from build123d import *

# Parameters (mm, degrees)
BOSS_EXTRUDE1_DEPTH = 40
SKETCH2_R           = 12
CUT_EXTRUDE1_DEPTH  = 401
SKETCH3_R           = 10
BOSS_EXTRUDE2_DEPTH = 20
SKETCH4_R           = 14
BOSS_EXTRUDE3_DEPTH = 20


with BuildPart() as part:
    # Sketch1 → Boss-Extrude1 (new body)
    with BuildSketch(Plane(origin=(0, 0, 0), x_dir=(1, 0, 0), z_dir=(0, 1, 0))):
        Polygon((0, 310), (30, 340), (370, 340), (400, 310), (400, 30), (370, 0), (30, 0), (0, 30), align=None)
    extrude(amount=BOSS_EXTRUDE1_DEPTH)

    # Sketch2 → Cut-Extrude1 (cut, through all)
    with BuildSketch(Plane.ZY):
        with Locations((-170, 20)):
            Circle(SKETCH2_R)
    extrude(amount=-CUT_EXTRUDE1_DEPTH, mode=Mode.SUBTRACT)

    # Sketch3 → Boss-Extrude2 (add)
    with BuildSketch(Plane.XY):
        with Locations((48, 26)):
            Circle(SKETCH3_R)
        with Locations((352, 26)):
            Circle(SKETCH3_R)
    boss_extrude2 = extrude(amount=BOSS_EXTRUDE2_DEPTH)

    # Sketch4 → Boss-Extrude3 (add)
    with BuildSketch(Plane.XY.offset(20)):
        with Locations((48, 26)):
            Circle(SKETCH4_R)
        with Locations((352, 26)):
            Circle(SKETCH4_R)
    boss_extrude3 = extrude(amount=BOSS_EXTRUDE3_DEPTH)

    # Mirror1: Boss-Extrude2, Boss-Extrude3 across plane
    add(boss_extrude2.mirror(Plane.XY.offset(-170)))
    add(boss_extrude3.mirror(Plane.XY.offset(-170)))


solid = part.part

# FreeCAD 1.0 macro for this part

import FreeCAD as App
import Part
import Sketcher


def add_polygon(sketch, points):
    """Adds a closed chain of lines whose ends are joined by coincident constraints."""
    first, n = sketch.GeometryCount, len(points)
    for a, b in zip(points, points[1:] + points[:1]):
        sketch.addGeometry(Part.LineSegment(App.Vector(*a, 0), App.Vector(*b, 0)), False)
    for i in range(n):
        sketch.addConstraint(Sketcher.Constraint("Coincident", first + i, 2, first + (i + 1) % n, 1))

doc = App.newDocument("Part")
params = doc.addObject("Spreadsheet::Sheet", "Params")
for row, (alias, value) in enumerate([
    ("sketch1_width", "340 mm"),
    ("sketch1_height", "280 mm"),
    ("pad1_length", "40 mm"),
    ("sketch2_diameter", "24 mm"),
    ("sketch3_diameter", "20 mm"),
    ("pad2_length", "20 mm"),
    ("sketch4_diameter", "28 mm"),
    ("pad3_length", "20 mm"),
], start=1):
    params.set(f"A{row}", alias)
    params.set(f"B{row}", "=" + value)
    params.setAlias(f"B{row}", alias)

body = doc.addObject("PartDesign::Body", "Body")

sketch1 = doc.addObject("Sketcher::SketchObject", "Sketch")
body.addObject(sketch1)
sketch1.AttachmentSupport = (doc.XZ_Plane, [""])
sketch1.MapMode = "FlatFace"
add_polygon(sketch1, [(30, -340), (0, -310), (0, -30), (30, 0), (370, 0), (400, -30), (400, -310), (370, -340)])
sketch1.addConstraint(Sketcher.Constraint("Vertical", 1))
sketch1.addConstraint(Sketcher.Constraint("Horizontal", 3))
sketch1.addConstraint(Sketcher.Constraint("Vertical", 5))
sketch1.addConstraint(Sketcher.Constraint("Horizontal", 7))
sketch1.addConstraint(Sketcher.Constraint("PointOnObject", 0, 2, -2))
sketch1.addConstraint(Sketcher.Constraint("PointOnObject", 2, 2, -1))
sketch1.addConstraint(Sketcher.Constraint("Perpendicular", 0, 2))
sketch1.addConstraint(Sketcher.Constraint("Perpendicular", 2, 4))
sketch1.addConstraint(Sketcher.Constraint("Perpendicular", 4, 6))
sketch1.addConstraint(Sketcher.Constraint("Horizontal", 1, 2, 4, 2))
sketch1.addConstraint(Sketcher.Constraint("Horizontal", 0, 2, 5, 2))
sketch1.addConstraint(Sketcher.Constraint("Vertical", 3, 2, 6, 2))
sketch1.addConstraint(Sketcher.Constraint("Vertical", 2, 2, 7, 2))
sketch1.addConstraint(Sketcher.Constraint("DistanceX", 3, 1, 3, 2, 340.0))
sketch1.addConstraint(Sketcher.Constraint("DistanceY", 1, 1, 1, 2, 280.0))
sketch1.addConstraint(Sketcher.Constraint("DistanceY", 0, 2, -1, 1, 310.0))
sketch1.setExpression("Constraints[21]", "Params.sketch1_width")
sketch1.setExpression("Constraints[22]", "Params.sketch1_height")
pad1 = doc.addObject("PartDesign::Pad", "Pad")
body.addObject(pad1)
pad1.Profile = sketch1
pad1.setExpression("Length", "Params.pad1_length")
pad1.Reversed = True

sketch2 = doc.addObject("Sketcher::SketchObject", "Sketch001")
body.addObject(sketch2)
sketch2.AttachmentSupport = (doc.YZ_Plane, [""])
sketch2.MapMode = "FlatFace"
sketch2.addGeometry(Part.Circle(App.Vector(20, -170, 0), App.Vector(0, 0, 1), 12), False)
sketch2.addConstraint(Sketcher.Constraint("Diameter", 0, 24.0))
sketch2.addConstraint(Sketcher.Constraint("DistanceX", -1, 1, 0, 3, 20.0))
sketch2.addConstraint(Sketcher.Constraint("DistanceY", 0, 3, -1, 1, 170.0))
sketch2.setExpression("Constraints[0]", "Params.sketch2_diameter")
pocket1 = doc.addObject("PartDesign::Pocket", "Pocket")
body.addObject(pocket1)
pocket1.Profile = sketch2
pocket1.Type = "ThroughAll"
pocket1.Reversed = True

sketch3 = doc.addObject("Sketcher::SketchObject", "Sketch002")
body.addObject(sketch3)
sketch3.AttachmentSupport = (doc.XY_Plane, [""])
sketch3.MapMode = "FlatFace"
sketch3.addGeometry(Part.Circle(App.Vector(48, 26, 0), App.Vector(0, 0, 1), 10), False)
sketch3.addGeometry(Part.Circle(App.Vector(352, 26, 0), App.Vector(0, 0, 1), 10), False)
sketch3.addConstraint(Sketcher.Constraint("Equal", 0, 1))
sketch3.addConstraint(Sketcher.Constraint("Horizontal", 0, 3, 1, 3))
sketch3.addConstraint(Sketcher.Constraint("Diameter", 0, 20.0))
sketch3.addConstraint(Sketcher.Constraint("DistanceX", -1, 1, 0, 3, 48.0))
sketch3.addConstraint(Sketcher.Constraint("DistanceY", -1, 1, 0, 3, 26.0))
sketch3.addConstraint(Sketcher.Constraint("DistanceX", -1, 1, 1, 3, 352.0))
sketch3.setExpression("Constraints[2]", "Params.sketch3_diameter")
pad2 = doc.addObject("PartDesign::Pad", "Pad001")
body.addObject(pad2)
pad2.Profile = sketch3
pad2.setExpression("Length", "Params.pad2_length")

sketch4 = doc.addObject("Sketcher::SketchObject", "Sketch003")
body.addObject(sketch4)
sketch4.AttachmentSupport = (doc.XY_Plane, [""])
sketch4.MapMode = "FlatFace"
sketch4.AttachmentOffset = App.Placement(App.Vector(0, 0, 20), App.Rotation())
sketch4.addGeometry(Part.Circle(App.Vector(48, 26, 0), App.Vector(0, 0, 1), 14), False)
sketch4.addGeometry(Part.Circle(App.Vector(352, 26, 0), App.Vector(0, 0, 1), 14), False)
sketch4.addConstraint(Sketcher.Constraint("Equal", 0, 1))
sketch4.addConstraint(Sketcher.Constraint("Horizontal", 0, 3, 1, 3))
sketch4.addConstraint(Sketcher.Constraint("Diameter", 0, 28.0))
sketch4.addConstraint(Sketcher.Constraint("DistanceX", -1, 1, 0, 3, 48.0))
sketch4.addConstraint(Sketcher.Constraint("DistanceY", -1, 1, 0, 3, 26.0))
sketch4.addConstraint(Sketcher.Constraint("DistanceX", -1, 1, 1, 3, 352.0))
sketch4.setExpression("Constraints[2]", "Params.sketch4_diameter")
pad3 = doc.addObject("PartDesign::Pad", "Pad002")
body.addObject(pad3)
pad3.Profile = sketch4
pad3.setExpression("Length", "Params.pad3_length")
doc.recompute()

datumplane = doc.addObject("PartDesign::Plane", "DatumPlane")
body.addObject(datumplane)
datumplane.AttachmentSupport = (doc.XY_Plane, [""])
datumplane.MapMode = "FlatFace"
datumplane.AttachmentOffset = App.Placement(App.Vector(0, 0, -170), App.Rotation())
mirrored = doc.addObject("PartDesign::Mirrored", "Mirrored")
body.addObject(mirrored)
mirrored.Originals = [pad2, pad3]
mirrored.MirrorPlane = (datumplane, [""])
body.Tip = mirrored

doc.recompute()
